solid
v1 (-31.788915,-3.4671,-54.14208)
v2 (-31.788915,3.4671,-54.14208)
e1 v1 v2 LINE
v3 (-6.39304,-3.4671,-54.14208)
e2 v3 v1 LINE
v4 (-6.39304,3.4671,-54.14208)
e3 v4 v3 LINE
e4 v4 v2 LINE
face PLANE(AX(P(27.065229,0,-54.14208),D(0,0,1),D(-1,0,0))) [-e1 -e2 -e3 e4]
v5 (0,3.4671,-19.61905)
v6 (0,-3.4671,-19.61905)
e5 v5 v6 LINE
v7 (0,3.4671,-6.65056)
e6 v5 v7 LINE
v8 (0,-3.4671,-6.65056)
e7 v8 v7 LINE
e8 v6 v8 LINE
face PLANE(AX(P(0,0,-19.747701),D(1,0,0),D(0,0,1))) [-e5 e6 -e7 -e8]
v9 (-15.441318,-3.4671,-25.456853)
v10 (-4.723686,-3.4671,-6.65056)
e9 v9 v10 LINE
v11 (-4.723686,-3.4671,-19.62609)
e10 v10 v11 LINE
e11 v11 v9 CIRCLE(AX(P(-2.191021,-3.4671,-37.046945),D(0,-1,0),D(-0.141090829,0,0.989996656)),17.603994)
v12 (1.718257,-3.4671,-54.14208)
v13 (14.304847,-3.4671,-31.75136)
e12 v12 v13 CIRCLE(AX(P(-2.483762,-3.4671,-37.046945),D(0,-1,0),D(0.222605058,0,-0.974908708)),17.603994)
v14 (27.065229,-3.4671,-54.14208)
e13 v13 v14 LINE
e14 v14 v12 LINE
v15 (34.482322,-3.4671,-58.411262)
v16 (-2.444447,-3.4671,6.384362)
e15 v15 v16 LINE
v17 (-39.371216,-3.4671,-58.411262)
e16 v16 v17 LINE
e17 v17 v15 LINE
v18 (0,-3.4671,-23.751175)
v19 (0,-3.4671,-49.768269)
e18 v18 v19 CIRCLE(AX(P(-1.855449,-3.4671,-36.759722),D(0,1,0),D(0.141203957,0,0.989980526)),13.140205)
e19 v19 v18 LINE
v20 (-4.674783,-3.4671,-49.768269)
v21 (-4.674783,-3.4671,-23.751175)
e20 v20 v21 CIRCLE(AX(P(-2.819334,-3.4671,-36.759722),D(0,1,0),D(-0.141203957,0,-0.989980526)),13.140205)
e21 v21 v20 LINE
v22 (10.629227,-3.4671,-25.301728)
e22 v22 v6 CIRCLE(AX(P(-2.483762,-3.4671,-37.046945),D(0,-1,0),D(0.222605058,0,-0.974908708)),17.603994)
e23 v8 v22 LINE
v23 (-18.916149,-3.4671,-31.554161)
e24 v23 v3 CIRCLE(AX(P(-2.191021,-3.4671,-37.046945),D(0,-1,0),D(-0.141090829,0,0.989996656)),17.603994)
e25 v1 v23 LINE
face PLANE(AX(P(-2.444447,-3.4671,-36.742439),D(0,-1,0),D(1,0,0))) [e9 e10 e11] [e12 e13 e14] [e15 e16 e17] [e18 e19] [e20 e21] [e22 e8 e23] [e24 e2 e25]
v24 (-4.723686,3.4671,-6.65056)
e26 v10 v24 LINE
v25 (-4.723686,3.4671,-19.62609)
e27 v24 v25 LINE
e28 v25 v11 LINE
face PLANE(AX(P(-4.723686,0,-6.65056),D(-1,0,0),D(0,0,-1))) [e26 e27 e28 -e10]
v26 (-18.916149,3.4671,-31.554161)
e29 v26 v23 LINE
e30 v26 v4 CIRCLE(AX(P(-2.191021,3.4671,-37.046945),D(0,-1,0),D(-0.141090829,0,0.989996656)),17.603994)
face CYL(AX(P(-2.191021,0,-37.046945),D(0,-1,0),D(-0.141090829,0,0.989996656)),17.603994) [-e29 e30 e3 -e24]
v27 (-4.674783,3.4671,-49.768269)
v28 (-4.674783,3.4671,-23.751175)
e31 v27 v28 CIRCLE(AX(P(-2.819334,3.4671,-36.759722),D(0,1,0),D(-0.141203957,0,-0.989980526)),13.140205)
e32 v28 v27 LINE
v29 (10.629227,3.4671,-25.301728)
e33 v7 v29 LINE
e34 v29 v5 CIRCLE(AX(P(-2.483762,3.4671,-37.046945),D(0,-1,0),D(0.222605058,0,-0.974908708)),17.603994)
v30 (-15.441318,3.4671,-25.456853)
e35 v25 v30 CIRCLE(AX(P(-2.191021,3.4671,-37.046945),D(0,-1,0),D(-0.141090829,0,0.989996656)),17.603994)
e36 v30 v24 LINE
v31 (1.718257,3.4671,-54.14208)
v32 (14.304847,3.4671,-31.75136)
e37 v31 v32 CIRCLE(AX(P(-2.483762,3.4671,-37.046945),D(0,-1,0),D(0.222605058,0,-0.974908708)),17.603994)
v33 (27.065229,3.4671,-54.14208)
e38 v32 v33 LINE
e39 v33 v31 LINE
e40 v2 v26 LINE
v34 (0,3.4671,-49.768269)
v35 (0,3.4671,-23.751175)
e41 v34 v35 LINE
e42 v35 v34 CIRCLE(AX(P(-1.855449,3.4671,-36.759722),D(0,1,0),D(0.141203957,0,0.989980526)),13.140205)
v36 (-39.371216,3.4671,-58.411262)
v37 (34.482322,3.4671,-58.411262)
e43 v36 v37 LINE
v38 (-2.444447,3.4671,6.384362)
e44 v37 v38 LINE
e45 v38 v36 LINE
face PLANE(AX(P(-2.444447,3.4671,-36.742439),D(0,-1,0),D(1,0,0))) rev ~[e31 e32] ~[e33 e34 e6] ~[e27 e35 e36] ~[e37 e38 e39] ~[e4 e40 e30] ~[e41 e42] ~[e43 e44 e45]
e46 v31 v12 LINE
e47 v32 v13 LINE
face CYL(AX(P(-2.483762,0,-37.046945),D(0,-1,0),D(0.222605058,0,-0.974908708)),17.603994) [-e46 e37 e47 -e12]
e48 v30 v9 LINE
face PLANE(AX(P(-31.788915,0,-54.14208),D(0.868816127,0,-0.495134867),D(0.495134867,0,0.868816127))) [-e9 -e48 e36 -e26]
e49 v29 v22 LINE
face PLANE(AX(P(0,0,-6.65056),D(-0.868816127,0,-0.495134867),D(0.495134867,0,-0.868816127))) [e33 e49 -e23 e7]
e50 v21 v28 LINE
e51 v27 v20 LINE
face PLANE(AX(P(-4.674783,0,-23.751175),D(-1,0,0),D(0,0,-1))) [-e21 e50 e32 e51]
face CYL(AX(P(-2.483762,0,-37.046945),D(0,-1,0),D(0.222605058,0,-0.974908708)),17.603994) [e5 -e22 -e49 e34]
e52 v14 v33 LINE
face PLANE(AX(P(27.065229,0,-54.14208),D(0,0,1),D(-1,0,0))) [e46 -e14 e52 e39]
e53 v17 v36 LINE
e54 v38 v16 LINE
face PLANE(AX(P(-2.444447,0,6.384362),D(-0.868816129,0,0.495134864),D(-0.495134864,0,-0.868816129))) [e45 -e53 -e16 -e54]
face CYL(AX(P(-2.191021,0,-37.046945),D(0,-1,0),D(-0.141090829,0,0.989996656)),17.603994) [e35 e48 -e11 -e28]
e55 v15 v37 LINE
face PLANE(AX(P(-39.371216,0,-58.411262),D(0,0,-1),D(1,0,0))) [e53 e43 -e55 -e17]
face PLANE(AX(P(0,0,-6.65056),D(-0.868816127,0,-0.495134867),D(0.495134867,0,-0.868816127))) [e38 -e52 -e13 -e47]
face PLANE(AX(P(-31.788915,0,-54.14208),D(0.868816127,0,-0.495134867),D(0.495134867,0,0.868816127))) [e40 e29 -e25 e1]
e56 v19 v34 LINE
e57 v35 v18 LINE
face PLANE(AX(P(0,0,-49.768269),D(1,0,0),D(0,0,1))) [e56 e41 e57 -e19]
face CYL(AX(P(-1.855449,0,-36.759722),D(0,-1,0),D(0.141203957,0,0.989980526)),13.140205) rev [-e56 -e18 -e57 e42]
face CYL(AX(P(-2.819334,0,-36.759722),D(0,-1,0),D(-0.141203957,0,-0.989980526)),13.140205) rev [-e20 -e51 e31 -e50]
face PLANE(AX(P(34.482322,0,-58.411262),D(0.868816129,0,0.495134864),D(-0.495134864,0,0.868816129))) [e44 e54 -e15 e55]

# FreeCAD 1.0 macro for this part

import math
import FreeCAD as App
import Part
import Sketcher


def add_polygon(sketch, points):
    """Adds a closed chain of lines whose ends are joined by coincident constraints."""
    first, n = sketch.GeometryCount, len(points)
    for a, b in zip(points, points[1:] + points[:1]):
        sketch.addGeometry(Part.LineSegment(App.Vector(*a, 0), App.Vector(*b, 0)), False)
    for i in range(n):
        sketch.addConstraint(Sketcher.Constraint("Coincident", first + i, 2, first + (i + 1) % n, 1))

doc = App.newDocument("Part")
body = doc.addObject("PartDesign::Body", "Body")

# Sketch on XZ plane
sketch1 = doc.addObject("Sketcher::SketchObject", "Sketch")
body.addObject(sketch1)
sketch1.AttachmentSupport = (doc.XZ_Plane, [""])
sketch1.MapMode = "FlatFace"
sketch1.addGeometry([
    Part.ArcOfCircle(Part.Circle(App.Vector(-2.3, -34.1, 0), App.Vector(0, 0, 1), 20.4), math.radians(-101), math.radians(-79)),  # 0
    Part.ArcOfCircle(Part.Circle(App.Vector(-2.5, -37, 0), App.Vector(0, 0, 1), 17.6), math.radians(-77), math.radians(82)),  # 1
    Part.ArcOfCircle(Part.Circle(App.Vector(-2.3, -29.9, 0), App.Vector(0, 0, 1), 10.5), math.radians(77), math.radians(103)),  # 2
    Part.ArcOfCircle(Part.Circle(App.Vector(-2.2, -37, 0), App.Vector(0, 0, 1), 17.6), math.radians(98), math.radians(257)),  # 3
    Part.LineSegment(App.Vector(-4.7, -23.8, 0), App.Vector(-4.7, -49.8, 0)),  # 4
    Part.ArcOfCircle(Part.Circle(App.Vector(-2.8, -36.8, 0), App.Vector(0, 0, 1), 13.1), math.radians(98), math.radians(262)),  # 5
    Part.LineSegment(App.Vector(0, -49.8, 0), App.Vector(0, -23.8, 0)),  # 6
    Part.ArcOfCircle(Part.Circle(App.Vector(-1.9, -36.8, 0), App.Vector(0, 0, 1), 13.1), math.radians(-82), math.radians(82)),  # 7
], False)
sketch1.addConstraint([
    Sketcher.Constraint("Coincident", 0, 2, 1, 1),
    Sketcher.Constraint("Coincident", 1, 2, 2, 1),
    Sketcher.Constraint("Coincident", 2, 2, 3, 1),
    Sketcher.Constraint("Coincident", 3, 2, 0, 1),
    Sketcher.Constraint("Coincident", 4, 1, 5, 1),
    Sketcher.Constraint("Coincident", 5, 2, 4, 2),
    Sketcher.Constraint("Coincident", 6, 1, 7, 1),
    Sketcher.Constraint("Coincident", 7, 2, 6, 2),
    Sketcher.Constraint("Vertical", 4),
    Sketcher.Constraint("Vertical", 6),
    Sketcher.Constraint("Equal", 1, 3),
    Sketcher.Constraint("Equal", 5, 7),
    Sketcher.Constraint("PointOnObject", 1, 2, -2),
    Sketcher.Constraint("PointOnObject", 6, 1, -2),
    Sketcher.Constraint("Horizontal", 1, 3, 3, 3),
    Sketcher.Constraint("Horizontal", 5, 3, 7, 3),
    Sketcher.Constraint("Horizontal", 1, 2, 2, 2),
    Sketcher.Constraint("Horizontal", 0, 2, 3, 2),
    Sketcher.Constraint("Horizontal", 5, 2, 6, 1),
    Sketcher.Constraint("Vertical", 2, 2, 4, 1),
    Sketcher.Constraint("Radius", 0, 20.436704),
    Sketcher.Constraint("Radius", 1, 17.603994),
    Sketcher.Constraint("Radius", 2, 10.511566),
    Sketcher.Constraint("Radius", 5, 13.140205),
    Sketcher.Constraint("DistanceY", 1, 3, 2, 3, 7.179499),
    Sketcher.Constraint("DistanceY", 4, 2, 4, 1, 26.017094),
    Sketcher.Constraint("DistanceX", 0, 3, -1, 1, 2.337391),
    Sketcher.Constraint("DistanceY", 5, 3, -1, 1, 36.759722),
    Sketcher.Constraint("DistanceY", 1, 2, -1, 1, 19.61905),
    Sketcher.Constraint("DistanceX", 3, 2, -1, 1, 6.109759),
])
pad1 = doc.addObject("PartDesign::Pad", "Pad")
body.addObject(pad1)
pad1.Profile = sketch1
pad1.Length = 6.9342
pad1.Midplane = True

# Sketch on XZ plane
sketch2 = doc.addObject("Sketcher::SketchObject", "Sketch001")
body.addObject(sketch2)
sketch2.AttachmentSupport = (doc.XZ_Plane, [""])
sketch2.MapMode = "FlatFace"
add_polygon(sketch2, [(34.5, -58.4), (-2.4, 6.4), (-39.4, -58.4)])  # lines 0-2
sketch2.addGeometry(Part.ArcOfCircle(Part.Circle(App.Vector(-2.4, -27.5, 0), App.Vector(0, 0, 1), 8.1), math.radians(73), math.radians(107)), False)  # 3
sketch2.addGeometry(Part.LineSegment(App.Vector(0, -19.7, 0), App.Vector(0, -6.7, 0)), False)  # 4
sketch2.addGeometry(Part.LineSegment(App.Vector(0, -6.7, 0), App.Vector(27.1, -54.1, 0)), False)  # 5
sketch2.addGeometry(Part.LineSegment(App.Vector(27.1, -54.1, 0), App.Vector(-31.8, -54.1, 0)), False)  # 6
sketch2.addGeometry(Part.LineSegment(App.Vector(-31.8, -54.1, 0), App.Vector(-4.7, -6.7, 0)), False)  # 7
sketch2.addGeometry(Part.LineSegment(App.Vector(-4.7, -6.7, 0), App.Vector(-4.7, -19.7, 0)), False)  # 8
sketch2.addConstraint([
    Sketcher.Constraint("Coincident", 3, 1, 4, 1),
    Sketcher.Constraint("Coincident", 4, 2, 5, 1),
    Sketcher.Constraint("Coincident", 5, 2, 6, 1),
    Sketcher.Constraint("Coincident", 6, 2, 7, 1),
    Sketcher.Constraint("Coincident", 7, 2, 8, 1),
    Sketcher.Constraint("Coincident", 8, 2, 3, 2),
    Sketcher.Constraint("Horizontal", 2),
    Sketcher.Constraint("Vertical", 4),
    Sketcher.Constraint("Horizontal", 6),
    Sketcher.Constraint("Vertical", 8),
    Sketcher.Constraint("PointOnObject", 3, 1, -2),
    Sketcher.Constraint("Parallel", 0, 5),
    Sketcher.Constraint("Parallel", 1, 7),
    Sketcher.Constraint("Horizontal", 4, 2, 7, 2),
    Sketcher.Constraint("Horizontal", 3, 1, 8, 2),
    Sketcher.Constraint("Equal", 0, 1),
    Sketcher.Constraint("Radius", 3, 8.059942),
    Sketcher.Constraint("DistanceX", 2, 1, 2, 2, 73.853538),
    Sketcher.Constraint("DistanceY", 4, 1, 4, 2, 13.097141),
    Sketcher.Constraint("DistanceY", 3, 1, -1, 1, 19.747701),
    Sketcher.Constraint("DistanceX", 1, 2, 6, 2, 7.582301),
    Sketcher.Constraint("DistanceX", 6, 2, 6, 1, 58.854144),
    Sketcher.Constraint("DistanceX", -1, 1, 5, 2, 27.065229),
    Sketcher.Constraint("DistanceY", 5, 2, -1, 1, 54.14208),
    Sketcher.Constraint("DistanceY", 2, 2, 3, 1, 38.663561),
])
pad2 = doc.addObject("PartDesign::Pad", "Pad001")
body.addObject(pad2)
pad2.Profile = sketch2
pad2.Length = 6.9342
pad2.Midplane = True

doc.recompute()
